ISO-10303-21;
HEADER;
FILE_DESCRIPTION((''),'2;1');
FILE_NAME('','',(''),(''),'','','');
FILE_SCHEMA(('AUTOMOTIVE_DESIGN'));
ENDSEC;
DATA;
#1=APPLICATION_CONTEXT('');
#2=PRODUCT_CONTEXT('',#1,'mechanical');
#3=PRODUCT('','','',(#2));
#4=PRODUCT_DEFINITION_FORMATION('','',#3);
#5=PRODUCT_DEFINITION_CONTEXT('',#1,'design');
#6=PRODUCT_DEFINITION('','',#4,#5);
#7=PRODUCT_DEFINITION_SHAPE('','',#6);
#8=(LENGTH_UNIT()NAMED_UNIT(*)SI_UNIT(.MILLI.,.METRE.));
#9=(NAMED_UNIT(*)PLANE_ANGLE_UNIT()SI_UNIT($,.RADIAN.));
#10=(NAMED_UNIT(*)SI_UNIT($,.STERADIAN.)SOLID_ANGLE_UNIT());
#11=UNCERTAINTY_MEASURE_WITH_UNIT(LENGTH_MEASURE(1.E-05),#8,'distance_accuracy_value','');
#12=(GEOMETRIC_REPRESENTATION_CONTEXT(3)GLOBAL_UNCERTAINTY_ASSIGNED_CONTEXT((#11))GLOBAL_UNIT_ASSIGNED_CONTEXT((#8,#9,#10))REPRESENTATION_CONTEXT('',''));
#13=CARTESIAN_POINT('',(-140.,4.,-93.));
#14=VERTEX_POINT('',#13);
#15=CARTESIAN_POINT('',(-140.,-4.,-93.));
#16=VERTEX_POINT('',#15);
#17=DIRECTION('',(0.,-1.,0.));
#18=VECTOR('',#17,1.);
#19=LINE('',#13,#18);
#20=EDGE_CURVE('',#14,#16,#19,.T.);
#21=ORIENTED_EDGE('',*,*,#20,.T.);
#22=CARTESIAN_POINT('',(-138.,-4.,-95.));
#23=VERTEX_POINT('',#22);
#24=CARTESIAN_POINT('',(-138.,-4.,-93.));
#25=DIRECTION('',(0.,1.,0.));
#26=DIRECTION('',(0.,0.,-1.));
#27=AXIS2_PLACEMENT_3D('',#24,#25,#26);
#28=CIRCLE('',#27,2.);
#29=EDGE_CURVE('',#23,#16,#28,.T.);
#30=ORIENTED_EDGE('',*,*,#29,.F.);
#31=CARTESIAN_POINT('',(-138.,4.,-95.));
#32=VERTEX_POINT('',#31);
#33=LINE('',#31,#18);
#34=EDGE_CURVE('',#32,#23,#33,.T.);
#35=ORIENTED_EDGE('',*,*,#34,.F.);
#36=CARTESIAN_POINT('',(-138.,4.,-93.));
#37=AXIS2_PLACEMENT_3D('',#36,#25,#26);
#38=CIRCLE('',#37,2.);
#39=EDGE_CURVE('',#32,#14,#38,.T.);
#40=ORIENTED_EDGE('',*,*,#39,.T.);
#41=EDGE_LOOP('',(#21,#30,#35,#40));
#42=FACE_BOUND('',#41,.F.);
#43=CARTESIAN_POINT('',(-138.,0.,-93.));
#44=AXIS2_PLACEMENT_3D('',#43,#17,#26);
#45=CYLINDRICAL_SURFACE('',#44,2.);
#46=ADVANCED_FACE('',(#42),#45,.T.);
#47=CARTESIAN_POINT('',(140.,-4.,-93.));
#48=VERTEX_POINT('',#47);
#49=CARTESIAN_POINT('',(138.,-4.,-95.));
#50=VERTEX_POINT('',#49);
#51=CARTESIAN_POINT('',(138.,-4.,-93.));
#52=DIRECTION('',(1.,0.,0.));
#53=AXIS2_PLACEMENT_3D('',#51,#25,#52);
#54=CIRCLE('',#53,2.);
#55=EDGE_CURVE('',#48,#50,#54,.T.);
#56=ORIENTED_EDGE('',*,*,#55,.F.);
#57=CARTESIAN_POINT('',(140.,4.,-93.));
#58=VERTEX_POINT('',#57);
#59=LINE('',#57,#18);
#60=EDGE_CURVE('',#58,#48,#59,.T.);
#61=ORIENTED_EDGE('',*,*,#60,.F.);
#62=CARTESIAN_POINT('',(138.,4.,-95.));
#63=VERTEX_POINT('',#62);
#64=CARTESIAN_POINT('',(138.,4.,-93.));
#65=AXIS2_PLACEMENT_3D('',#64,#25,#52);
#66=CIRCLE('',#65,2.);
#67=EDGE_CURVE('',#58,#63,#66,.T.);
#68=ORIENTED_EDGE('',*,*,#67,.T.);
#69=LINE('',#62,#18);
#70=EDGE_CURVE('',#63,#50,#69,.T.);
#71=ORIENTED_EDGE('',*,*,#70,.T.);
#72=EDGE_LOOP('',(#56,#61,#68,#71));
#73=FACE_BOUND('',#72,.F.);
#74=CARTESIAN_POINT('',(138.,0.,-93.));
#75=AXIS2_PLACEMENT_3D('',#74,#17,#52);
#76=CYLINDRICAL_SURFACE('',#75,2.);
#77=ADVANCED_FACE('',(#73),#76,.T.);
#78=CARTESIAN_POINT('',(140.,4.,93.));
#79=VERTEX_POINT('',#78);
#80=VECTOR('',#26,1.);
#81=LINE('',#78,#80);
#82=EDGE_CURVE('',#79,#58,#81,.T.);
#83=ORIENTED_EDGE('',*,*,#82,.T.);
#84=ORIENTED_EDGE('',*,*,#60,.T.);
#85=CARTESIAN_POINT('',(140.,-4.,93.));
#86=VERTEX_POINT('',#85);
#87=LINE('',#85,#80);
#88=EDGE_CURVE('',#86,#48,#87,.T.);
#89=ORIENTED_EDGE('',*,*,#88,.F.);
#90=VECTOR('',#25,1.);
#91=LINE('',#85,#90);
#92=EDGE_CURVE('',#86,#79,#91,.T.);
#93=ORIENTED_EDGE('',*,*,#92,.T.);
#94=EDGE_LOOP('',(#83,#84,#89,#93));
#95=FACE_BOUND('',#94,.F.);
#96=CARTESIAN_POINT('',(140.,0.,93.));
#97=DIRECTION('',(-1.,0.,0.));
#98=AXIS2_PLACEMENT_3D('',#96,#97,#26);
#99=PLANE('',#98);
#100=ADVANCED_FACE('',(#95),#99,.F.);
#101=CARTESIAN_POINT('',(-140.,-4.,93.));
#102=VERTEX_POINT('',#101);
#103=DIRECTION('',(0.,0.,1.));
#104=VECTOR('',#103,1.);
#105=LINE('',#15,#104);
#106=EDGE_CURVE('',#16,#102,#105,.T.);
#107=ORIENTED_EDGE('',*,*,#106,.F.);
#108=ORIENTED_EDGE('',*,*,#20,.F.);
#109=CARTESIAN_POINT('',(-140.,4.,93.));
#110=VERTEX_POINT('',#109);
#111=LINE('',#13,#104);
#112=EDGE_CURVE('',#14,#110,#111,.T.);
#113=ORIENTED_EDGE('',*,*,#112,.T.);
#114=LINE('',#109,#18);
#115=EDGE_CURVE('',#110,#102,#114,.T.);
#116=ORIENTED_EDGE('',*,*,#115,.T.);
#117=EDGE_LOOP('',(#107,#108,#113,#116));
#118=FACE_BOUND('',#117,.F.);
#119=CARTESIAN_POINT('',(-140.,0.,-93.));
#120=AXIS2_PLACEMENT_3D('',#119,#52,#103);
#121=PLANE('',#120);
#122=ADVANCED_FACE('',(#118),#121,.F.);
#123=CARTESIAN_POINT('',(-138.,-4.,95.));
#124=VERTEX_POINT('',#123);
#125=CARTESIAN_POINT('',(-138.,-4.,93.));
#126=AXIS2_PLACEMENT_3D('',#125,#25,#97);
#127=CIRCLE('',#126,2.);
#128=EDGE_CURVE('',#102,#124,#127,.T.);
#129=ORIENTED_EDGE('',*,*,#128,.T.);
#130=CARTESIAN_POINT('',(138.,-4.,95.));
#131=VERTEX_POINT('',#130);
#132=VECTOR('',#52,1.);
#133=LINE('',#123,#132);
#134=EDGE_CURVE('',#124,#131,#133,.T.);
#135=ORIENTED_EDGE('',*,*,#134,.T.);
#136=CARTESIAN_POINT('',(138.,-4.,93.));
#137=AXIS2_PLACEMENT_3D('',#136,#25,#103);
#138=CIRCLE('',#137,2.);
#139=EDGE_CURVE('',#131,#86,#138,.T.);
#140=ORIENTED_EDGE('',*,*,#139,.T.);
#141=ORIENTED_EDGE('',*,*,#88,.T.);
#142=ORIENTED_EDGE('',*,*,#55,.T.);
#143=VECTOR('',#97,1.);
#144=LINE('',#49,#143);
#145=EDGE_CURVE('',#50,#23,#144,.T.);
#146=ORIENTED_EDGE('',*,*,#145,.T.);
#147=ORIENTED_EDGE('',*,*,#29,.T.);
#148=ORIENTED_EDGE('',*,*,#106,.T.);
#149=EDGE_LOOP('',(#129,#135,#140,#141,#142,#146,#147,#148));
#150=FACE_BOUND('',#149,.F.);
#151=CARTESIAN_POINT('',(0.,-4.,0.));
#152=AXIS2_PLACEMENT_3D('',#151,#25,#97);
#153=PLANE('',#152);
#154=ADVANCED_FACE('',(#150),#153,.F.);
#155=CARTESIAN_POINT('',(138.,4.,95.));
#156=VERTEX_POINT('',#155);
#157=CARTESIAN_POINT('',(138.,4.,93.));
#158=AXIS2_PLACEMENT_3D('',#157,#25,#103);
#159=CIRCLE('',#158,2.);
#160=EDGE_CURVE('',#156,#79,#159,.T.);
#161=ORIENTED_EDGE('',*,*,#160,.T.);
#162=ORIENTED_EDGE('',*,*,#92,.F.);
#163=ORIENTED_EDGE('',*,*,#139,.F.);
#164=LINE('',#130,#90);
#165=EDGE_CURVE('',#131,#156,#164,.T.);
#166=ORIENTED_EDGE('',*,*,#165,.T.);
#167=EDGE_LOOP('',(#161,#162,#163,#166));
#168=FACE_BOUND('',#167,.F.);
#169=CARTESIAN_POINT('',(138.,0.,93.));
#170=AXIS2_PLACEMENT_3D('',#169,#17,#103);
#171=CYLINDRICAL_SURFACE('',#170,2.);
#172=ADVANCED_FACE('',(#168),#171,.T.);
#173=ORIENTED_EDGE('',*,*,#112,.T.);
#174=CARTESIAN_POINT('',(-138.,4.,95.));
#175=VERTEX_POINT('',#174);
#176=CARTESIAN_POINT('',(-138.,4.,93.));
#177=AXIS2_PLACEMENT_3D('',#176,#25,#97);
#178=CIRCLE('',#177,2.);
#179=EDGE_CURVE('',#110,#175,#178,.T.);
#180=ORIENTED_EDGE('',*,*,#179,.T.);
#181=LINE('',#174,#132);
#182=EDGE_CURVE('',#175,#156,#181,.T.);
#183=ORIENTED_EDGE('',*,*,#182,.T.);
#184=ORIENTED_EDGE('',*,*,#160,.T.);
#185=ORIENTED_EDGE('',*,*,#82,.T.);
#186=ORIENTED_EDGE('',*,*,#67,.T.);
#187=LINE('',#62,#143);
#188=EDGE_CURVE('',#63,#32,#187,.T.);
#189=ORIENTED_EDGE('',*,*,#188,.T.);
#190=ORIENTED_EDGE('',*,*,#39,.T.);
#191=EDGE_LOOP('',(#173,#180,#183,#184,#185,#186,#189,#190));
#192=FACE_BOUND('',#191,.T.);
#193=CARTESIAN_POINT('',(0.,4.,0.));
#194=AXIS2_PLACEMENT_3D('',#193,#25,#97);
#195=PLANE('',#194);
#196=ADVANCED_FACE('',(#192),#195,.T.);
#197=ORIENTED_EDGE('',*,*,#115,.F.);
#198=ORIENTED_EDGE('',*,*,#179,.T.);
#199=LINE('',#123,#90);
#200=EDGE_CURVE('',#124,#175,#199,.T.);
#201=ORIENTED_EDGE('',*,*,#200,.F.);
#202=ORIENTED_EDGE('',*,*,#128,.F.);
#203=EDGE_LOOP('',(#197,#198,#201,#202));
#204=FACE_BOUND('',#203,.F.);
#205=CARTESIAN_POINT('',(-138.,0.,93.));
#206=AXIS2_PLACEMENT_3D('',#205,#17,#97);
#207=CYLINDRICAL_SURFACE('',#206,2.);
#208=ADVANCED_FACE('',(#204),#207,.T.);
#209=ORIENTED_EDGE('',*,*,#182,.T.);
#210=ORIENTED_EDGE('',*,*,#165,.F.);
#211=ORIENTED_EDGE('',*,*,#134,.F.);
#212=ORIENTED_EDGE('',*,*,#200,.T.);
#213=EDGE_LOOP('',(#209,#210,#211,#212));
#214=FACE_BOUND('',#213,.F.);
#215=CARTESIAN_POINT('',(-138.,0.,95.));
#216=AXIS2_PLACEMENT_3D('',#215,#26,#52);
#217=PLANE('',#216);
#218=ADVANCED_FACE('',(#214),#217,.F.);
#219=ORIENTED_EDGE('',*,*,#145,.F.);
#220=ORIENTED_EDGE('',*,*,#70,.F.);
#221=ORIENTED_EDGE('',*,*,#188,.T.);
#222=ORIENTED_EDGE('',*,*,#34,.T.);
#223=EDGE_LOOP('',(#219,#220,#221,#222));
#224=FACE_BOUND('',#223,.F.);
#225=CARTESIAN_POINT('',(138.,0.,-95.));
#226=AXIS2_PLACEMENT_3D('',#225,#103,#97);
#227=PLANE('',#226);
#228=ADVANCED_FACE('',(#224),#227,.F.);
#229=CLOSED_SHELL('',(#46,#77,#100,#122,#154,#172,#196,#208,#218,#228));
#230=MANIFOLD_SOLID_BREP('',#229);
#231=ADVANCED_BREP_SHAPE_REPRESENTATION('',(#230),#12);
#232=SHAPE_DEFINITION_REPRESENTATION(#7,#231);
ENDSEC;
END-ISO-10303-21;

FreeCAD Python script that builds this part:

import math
import FreeCAD as App
import Part
import Sketcher
from FreeCAD import Vector

doc = App.newDocument("Part")
body = doc.addObject("PartDesign::Body", "Body")

# Sketch on XZ plane
sketch1 = body.newObject("Sketcher::SketchObject", "Sketch")
sketch1.AttachmentSupport = (doc.getObject("XZ_Plane"), [""])
sketch1.MapMode = "FlatFace"
sketch1.addGeometry([
    Part.ArcOfCircle(Part.Circle(Vector(-138, 93, 0), Vector(0, 0, 1), 2), math.radians(90), math.radians(180)),  # 0
    Part.LineSegment(Vector(-138, 95, 0), Vector(138, 95, 0)),  # 1
    Part.ArcOfCircle(Part.Circle(Vector(138, 93, 0), Vector(0, 0, 1), 2), math.radians(0), math.radians(90)),  # 2
    Part.LineSegment(Vector(140, 93, 0), Vector(140, -93, 0)),  # 3
    Part.ArcOfCircle(Part.Circle(Vector(138, -93, 0), Vector(0, 0, 1), 2), math.radians(-90), math.radians(0)),  # 4
    Part.LineSegment(Vector(138, -95, 0), Vector(-138, -95, 0)),  # 5
    Part.ArcOfCircle(Part.Circle(Vector(-138, -93, 0), Vector(0, 0, 1), 2), math.radians(180), math.radians(270)),  # 6
    Part.LineSegment(Vector(-140, -93, 0), Vector(-140, 93, 0)),  # 7
], False)
sketch1.addConstraint([
    Sketcher.Constraint("Tangent", 0, 1, 1, 1),
    Sketcher.Constraint("Tangent", 1, 2, 2, 2),
    Sketcher.Constraint("Tangent", 2, 1, 3, 1),
    Sketcher.Constraint("Tangent", 3, 2, 4, 2),
    Sketcher.Constraint("Tangent", 4, 1, 5, 1),
    Sketcher.Constraint("Tangent", 5, 2, 6, 2),
    Sketcher.Constraint("Tangent", 6, 1, 7, 1),
    Sketcher.Constraint("Tangent", 7, 2, 0, 2),
    Sketcher.Constraint("Horizontal", 1),
    Sketcher.Constraint("Vertical", 3),
    Sketcher.Constraint("Horizontal", 5),
    Sketcher.Constraint("Vertical", 7),
    Sketcher.Constraint("Equal", 0, 2),
    Sketcher.Constraint("Equal", 2, 4),
    Sketcher.Constraint("Equal", 4, 6),
    Sketcher.Constraint("Symmetric", 0, 3, 4, 3, -1, 1),
    Sketcher.Constraint("Radius", 0, 2.0),
    Sketcher.Constraint("DistanceY", 4, 1, 1, 2, 190.0),
    Sketcher.Constraint("DistanceX", 1, 1, 1, 2, 276.0),
])
pad1 = body.newObject("PartDesign::Pad", "Pad")
pad1.Profile = sketch1
pad1.Length = 8
pad1.Midplane = True

doc.recompute()
